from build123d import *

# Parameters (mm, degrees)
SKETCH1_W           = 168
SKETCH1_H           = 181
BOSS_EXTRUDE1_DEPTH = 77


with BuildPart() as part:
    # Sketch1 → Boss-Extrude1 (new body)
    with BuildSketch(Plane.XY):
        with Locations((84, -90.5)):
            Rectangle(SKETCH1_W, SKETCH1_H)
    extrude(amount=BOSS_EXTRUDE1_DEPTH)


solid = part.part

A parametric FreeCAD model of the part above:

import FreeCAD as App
import Part
import Sketcher
from FreeCAD import Vector
Q = App.Units.Quantity

doc = App.newDocument("Part")
body = doc.addObject("PartDesign::Body", "Body")

# Sketch on XY plane
sketch1 = body.newObject("Sketcher::SketchObject", "Sketch")
sketch1.AttachmentSupport = (doc.getObject("XY_Plane"), [""])
sketch1.MapMode = "FlatFace"
sketch1.addGeometry(Part.LineSegment(Vector(0, 0, 0), Vector(0, -181, 0)), False)
sketch1.addGeometry(Part.LineSegment(Vector(0, -181, 0), Vector(168, -181, 0)), False)
sketch1.addGeometry(Part.LineSegment(Vector(168, -181, 0), Vector(168, 0, 0)), False)
sketch1.addGeometry(Part.LineSegment(Vector(168, 0, 0), Vector(0, 0, 0)), False)
sketch1.addConstraint(Sketcher.Constraint("Coincident", 0, 2, 1, 1))
sketch1.addConstraint(Sketcher.Constraint("Coincident", 1, 2, 2, 1))
sketch1.addConstraint(Sketcher.Constraint("Coincident", 2, 2, 3, 1))
sketch1.addConstraint(Sketcher.Constraint("Coincident", 3, 2, 0, 1))
sketch1.addConstraint(Sketcher.Constraint("Vertical", 0))
sketch1.addConstraint(Sketcher.Constraint("Horizontal", 1))
sketch1.addConstraint(Sketcher.Constraint("Vertical", 2))
sketch1.addConstraint(Sketcher.Constraint("Horizontal", 3))
sketch1.addConstraint(Sketcher.Constraint("Coincident", 3, 2, -1, 1))
sketch1.addConstraint(Sketcher.Constraint("DistanceX", 1, 1, 1, 2, Q("168 mm")))
sketch1.addConstraint(Sketcher.Constraint("DistanceY", 0, 2, 0, 1, Q("181 mm")))
pad1 = body.newObject("PartDesign::Pad", "Pad")
pad1.Profile = sketch1
pad1.Length = 77

doc.recompute()
